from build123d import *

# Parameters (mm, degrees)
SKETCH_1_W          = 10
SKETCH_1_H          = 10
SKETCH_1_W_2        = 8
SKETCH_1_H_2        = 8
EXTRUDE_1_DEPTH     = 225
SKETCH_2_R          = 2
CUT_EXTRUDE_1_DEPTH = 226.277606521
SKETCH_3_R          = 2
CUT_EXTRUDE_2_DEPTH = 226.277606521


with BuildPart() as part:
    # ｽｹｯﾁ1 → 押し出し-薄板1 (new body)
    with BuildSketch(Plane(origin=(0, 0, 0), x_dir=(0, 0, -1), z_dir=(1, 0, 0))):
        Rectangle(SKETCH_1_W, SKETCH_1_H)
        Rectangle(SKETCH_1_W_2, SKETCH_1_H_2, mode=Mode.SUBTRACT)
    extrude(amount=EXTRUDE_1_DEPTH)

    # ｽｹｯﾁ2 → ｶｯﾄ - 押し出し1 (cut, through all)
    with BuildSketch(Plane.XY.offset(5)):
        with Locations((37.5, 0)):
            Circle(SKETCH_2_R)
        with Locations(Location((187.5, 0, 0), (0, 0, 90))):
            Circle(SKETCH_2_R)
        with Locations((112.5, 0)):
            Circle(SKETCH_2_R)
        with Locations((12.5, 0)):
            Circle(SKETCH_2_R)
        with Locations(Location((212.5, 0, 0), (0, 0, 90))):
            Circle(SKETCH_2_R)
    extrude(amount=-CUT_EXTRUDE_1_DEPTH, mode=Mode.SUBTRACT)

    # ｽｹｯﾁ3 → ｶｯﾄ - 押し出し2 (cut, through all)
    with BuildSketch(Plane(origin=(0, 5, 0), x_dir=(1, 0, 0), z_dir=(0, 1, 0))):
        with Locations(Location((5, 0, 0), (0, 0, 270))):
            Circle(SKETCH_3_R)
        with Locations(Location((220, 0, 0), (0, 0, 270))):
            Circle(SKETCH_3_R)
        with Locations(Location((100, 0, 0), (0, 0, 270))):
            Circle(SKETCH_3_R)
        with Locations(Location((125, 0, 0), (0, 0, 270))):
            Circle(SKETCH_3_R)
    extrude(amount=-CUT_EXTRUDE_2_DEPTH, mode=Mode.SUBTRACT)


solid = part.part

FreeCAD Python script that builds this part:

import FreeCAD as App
import Part
import Sketcher

doc = App.newDocument("Part")
body = doc.addObject("PartDesign::Body", "Body")

# Sketch on YZ plane
sketch1 = body.newObject("Sketcher::SketchObject", "Sketch")
sketch1.AttachmentSupport = (doc.getObject("YZ_Plane"), [""])
sketch1.MapMode = "FlatFace"
sketch1.addGeometry(Part.LineSegment(App.Vector(5, 5, 0), App.Vector(-5, 5, 0)), False)
sketch1.addGeometry(Part.LineSegment(App.Vector(-5, 5, 0), App.Vector(-5, -5, 0)), False)
sketch1.addGeometry(Part.LineSegment(App.Vector(-5, -5, 0), App.Vector(5, -5, 0)), False)
sketch1.addGeometry(Part.LineSegment(App.Vector(5, -5, 0), App.Vector(5, 5, 0)), False)
sketch1.addGeometry(Part.LineSegment(App.Vector(-4, -4, 0), App.Vector(-4, 4, 0)), False)
sketch1.addGeometry(Part.LineSegment(App.Vector(-4, 4, 0), App.Vector(4, 4, 0)), False)
sketch1.addGeometry(Part.LineSegment(App.Vector(4, 4, 0), App.Vector(4, -4, 0)), False)
sketch1.addGeometry(Part.LineSegment(App.Vector(4, -4, 0), App.Vector(-4, -4, 0)), False)
sketch1.addConstraint(Sketcher.Constraint("Coincident", 0, 2, 1, 1))
sketch1.addConstraint(Sketcher.Constraint("Coincident", 1, 2, 2, 1))
sketch1.addConstraint(Sketcher.Constraint("Coincident", 2, 2, 3, 1))
sketch1.addConstraint(Sketcher.Constraint("Coincident", 3, 2, 0, 1))
sketch1.addConstraint(Sketcher.Constraint("Coincident", 4, 2, 5, 1))
sketch1.addConstraint(Sketcher.Constraint("Coincident", 5, 2, 6, 1))
sketch1.addConstraint(Sketcher.Constraint("Coincident", 6, 2, 7, 1))
sketch1.addConstraint(Sketcher.Constraint("Coincident", 7, 2, 4, 1))
sketch1.addConstraint(Sketcher.Constraint("Horizontal", 0))
sketch1.addConstraint(Sketcher.Constraint("Vertical", 1))
sketch1.addConstraint(Sketcher.Constraint("Horizontal", 2))
sketch1.addConstraint(Sketcher.Constraint("Vertical", 3))
sketch1.addConstraint(Sketcher.Constraint("Vertical", 4))
sketch1.addConstraint(Sketcher.Constraint("Horizontal", 5))
sketch1.addConstraint(Sketcher.Constraint("Vertical", 6))
sketch1.addConstraint(Sketcher.Constraint("Horizontal", 7))
sketch1.addConstraint(Sketcher.Constraint("Symmetric", 0, 2, 2, 2, -1, 1))
sketch1.addConstraint(Sketcher.Constraint("Symmetric", 4, 2, 6, 2, -1, 1))
sketch1.addConstraint(Sketcher.Constraint("Equal", 2, 1))
sketch1.addConstraint(Sketcher.Constraint("Equal", 7, 4))
sketch1.addConstraint(Sketcher.Constraint("DistanceX", 0, 2, 0, 1, 10.0))
sketch1.addConstraint(Sketcher.Constraint("DistanceX", 5, 1, 5, 2, 8.0))
pad1 = body.newObject("PartDesign::Pad", "Pad")
pad1.Profile = sketch1
pad1.Length = 225

# Sketch on XY plane
sketch2 = body.newObject("Sketcher::SketchObject", "Sketch001")
sketch2.AttachmentSupport = (doc.getObject("XY_Plane"), [""])
sketch2.MapMode = "FlatFace"
sketch2.AttachmentOffset = App.Placement(App.Vector(0, 0, 5), App.Rotation())
sketch2.addGeometry(Part.Circle(App.Vector(37.5, 0, 0), App.Vector(0, 0, 1), 2), False)
sketch2.addGeometry(Part.Circle(App.Vector(187.5, 0, 0), App.Vector(0, 0, 1), 2), False)
sketch2.addGeometry(Part.Circle(App.Vector(112.5, 0, 0), App.Vector(0, 0, 1), 2), False)
sketch2.addGeometry(Part.Circle(App.Vector(12.5, 0, 0), App.Vector(0, 0, 1), 2), False)
sketch2.addGeometry(Part.Circle(App.Vector(212.5, 0, 0), App.Vector(0, 0, 1), 2), False)
sketch2.addConstraint(Sketcher.Constraint("Equal", 0, 1))
sketch2.addConstraint(Sketcher.Constraint("Equal", 1, 2))
sketch2.addConstraint(Sketcher.Constraint("Equal", 2, 3))
sketch2.addConstraint(Sketcher.Constraint("Equal", 3, 4))
sketch2.addConstraint(Sketcher.Constraint("PointOnObject", 0, 3, -1))
sketch2.addConstraint(Sketcher.Constraint("PointOnObject", 1, 3, -1))
sketch2.addConstraint(Sketcher.Constraint("PointOnObject", 2, 3, -1))
sketch2.addConstraint(Sketcher.Constraint("PointOnObject", 3, 3, -1))
sketch2.addConstraint(Sketcher.Constraint("PointOnObject", 4, 3, -1))
sketch2.addConstraint(Sketcher.Constraint("Diameter", 0, 4.0))
sketch2.addConstraint(Sketcher.Constraint("DistanceX", 0, 3, 1, 3, 150.0))
sketch2.addConstraint(Sketcher.Constraint("DistanceX", 0, 3, 2, 3, 75.0))
sketch2.addConstraint(Sketcher.Constraint("DistanceX", 3, 3, 0, 3, 25.0))
sketch2.addConstraint(Sketcher.Constraint("DistanceX", 1, 3, 4, 3, 25.0))
sketch2.addConstraint(Sketcher.Constraint("DistanceX", -1, 1, 0, 3, 37.5))
pocket1 = body.newObject("PartDesign::Pocket", "Pocket")
pocket1.Profile = sketch2
pocket1.Type = "ThroughAll"

# Sketch on XZ plane
sketch3 = body.newObject("Sketcher::SketchObject", "Sketch002")
sketch3.AttachmentSupport = (doc.getObject("XZ_Plane"), [""])
sketch3.MapMode = "FlatFace"
sketch3.AttachmentOffset = App.Placement(App.Vector(0, 0, -5), App.Rotation())
sketch3.addGeometry(Part.Circle(App.Vector(5, 0, 0), App.Vector(0, 0, 1), 2), False)
sketch3.addGeometry(Part.Circle(App.Vector(220, 0, 0), App.Vector(0, 0, 1), 2), False)
sketch3.addGeometry(Part.Circle(App.Vector(100, 0, 0), App.Vector(0, 0, 1), 2), False)
sketch3.addGeometry(Part.Circle(App.Vector(125, 0, 0), App.Vector(0, 0, 1), 2), False)
sketch3.addConstraint(Sketcher.Constraint("Equal", 0, 1))
sketch3.addConstraint(Sketcher.Constraint("Equal", 1, 2))
sketch3.addConstraint(Sketcher.Constraint("Equal", 2, 3))
sketch3.addConstraint(Sketcher.Constraint("PointOnObject", 0, 3, -1))
sketch3.addConstraint(Sketcher.Constraint("PointOnObject", 1, 3, -1))
sketch3.addConstraint(Sketcher.Constraint("PointOnObject", 2, 3, -1))
sketch3.addConstraint(Sketcher.Constraint("PointOnObject", 3, 3, -1))
sketch3.addConstraint(Sketcher.Constraint("Diameter", 0, 4.0))
sketch3.addConstraint(Sketcher.Constraint("DistanceX", -1, 1, 0, 3, 5.0))
sketch3.addConstraint(Sketcher.Constraint("DistanceX", -1, 1, 1, 3, 220.0))
sketch3.addConstraint(Sketcher.Constraint("DistanceX", -1, 1, 2, 3, 100.0))
sketch3.addConstraint(Sketcher.Constraint("DistanceX", -1, 1, 3, 3, 125.0))
pocket2 = body.newObject("PartDesign::Pocket", "Pocket001")
pocket2.Profile = sketch3
pocket2.Type = "ThroughAll"
pocket2.Reversed = True

doc.recompute()
